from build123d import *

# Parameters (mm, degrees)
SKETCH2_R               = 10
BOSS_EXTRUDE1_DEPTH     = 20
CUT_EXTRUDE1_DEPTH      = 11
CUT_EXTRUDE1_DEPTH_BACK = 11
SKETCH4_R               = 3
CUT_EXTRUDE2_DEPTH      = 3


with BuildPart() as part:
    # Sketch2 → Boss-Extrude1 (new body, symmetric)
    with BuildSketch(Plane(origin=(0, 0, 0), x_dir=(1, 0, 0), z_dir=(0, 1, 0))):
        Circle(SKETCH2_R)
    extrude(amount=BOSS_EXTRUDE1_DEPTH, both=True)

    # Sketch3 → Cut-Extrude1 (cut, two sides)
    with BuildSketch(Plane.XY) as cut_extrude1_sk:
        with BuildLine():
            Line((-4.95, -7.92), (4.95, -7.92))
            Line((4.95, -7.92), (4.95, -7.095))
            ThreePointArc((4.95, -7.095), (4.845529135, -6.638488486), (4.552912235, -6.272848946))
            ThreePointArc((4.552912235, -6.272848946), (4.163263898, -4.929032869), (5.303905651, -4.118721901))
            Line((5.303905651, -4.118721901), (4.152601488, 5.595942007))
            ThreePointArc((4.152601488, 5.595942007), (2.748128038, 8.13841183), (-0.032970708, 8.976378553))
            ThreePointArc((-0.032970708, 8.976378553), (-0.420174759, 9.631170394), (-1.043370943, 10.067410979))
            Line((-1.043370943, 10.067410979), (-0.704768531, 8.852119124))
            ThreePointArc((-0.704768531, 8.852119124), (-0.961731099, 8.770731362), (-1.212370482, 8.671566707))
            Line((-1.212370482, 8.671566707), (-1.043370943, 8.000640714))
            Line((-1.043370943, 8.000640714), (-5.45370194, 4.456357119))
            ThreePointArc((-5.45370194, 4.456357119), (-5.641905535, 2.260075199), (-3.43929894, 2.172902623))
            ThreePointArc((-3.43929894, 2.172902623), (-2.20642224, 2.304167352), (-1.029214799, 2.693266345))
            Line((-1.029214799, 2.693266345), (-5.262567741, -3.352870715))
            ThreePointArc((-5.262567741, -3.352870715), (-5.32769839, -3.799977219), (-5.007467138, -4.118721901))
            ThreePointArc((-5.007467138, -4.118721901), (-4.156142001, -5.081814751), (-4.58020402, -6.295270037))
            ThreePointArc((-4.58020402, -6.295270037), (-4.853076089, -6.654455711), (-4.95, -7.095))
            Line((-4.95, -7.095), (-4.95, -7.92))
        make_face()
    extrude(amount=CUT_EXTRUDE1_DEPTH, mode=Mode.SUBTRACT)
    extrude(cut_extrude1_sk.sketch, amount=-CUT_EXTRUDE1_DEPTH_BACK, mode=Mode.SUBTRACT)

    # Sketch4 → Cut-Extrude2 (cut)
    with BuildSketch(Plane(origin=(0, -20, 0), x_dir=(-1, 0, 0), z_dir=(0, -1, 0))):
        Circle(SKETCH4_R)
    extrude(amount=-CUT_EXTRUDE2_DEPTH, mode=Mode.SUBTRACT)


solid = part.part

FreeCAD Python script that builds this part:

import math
import FreeCAD as App
import Part
import Sketcher
from FreeCAD import Vector

doc = App.newDocument("Part")
body = doc.addObject("PartDesign::Body", "Body")

# Sketch on XZ plane
sketch1 = body.newObject("Sketcher::SketchObject", "Sketch")
sketch1.AttachmentSupport = (doc.getObject("XZ_Plane"), [""])
sketch1.MapMode = "FlatFace"
sketch1.addGeometry(Part.Circle(Vector(0, 0, 0), Vector(0, 0, 1), 10), False)
sketch1.addConstraint(Sketcher.Constraint("Coincident", 0, 3, -1, 1))
sketch1.addConstraint(Sketcher.Constraint("Diameter", 0, 20.0))
pad1 = body.newObject("PartDesign::Pad", "Pad")
pad1.Profile = sketch1
pad1.Length = 40
pad1.Midplane = True

# Sketch on XY plane
sketch2 = body.newObject("Sketcher::SketchObject", "Sketch001")
sketch2.AttachmentSupport = (doc.getObject("XY_Plane"), [""])
sketch2.MapMode = "FlatFace"
sketch2.addGeometry(Part.LineSegment(Vector(-5, -7.9, 0), Vector(5, -7.9, 0)), False)
sketch2.addGeometry(Part.LineSegment(Vector(5, -7.9, 0), Vector(5, -7.1, 0)), False)
sketch2.addGeometry(Part.ArcOfCircle(Part.Circle(Vector(3.9, -7.1, 0), Vector(0, 0, 1), 1), math.radians(0), math.radians(52)), False)
sketch2.addGeometry(Part.ArcOfCircle(Part.Circle(Vector(5.3, -5.3, 0), Vector(0, 0, 1), 1.2), math.radians(90), math.radians(232)), False)
sketch2.addGeometry(Part.LineSegment(Vector(5.3, -4.1, 0), Vector(4.2, 5.6, 0)), False)
sketch2.addGeometry(Part.ArcOfCircle(Part.Circle(Vector(0.3, 5.1, 0), Vector(0, 0, 1), 3.9), math.radians(7), math.radians(95)), False)
sketch2.addGeometry(Part.ArcOfCircle(Part.Circle(Vector(-1.7, 8.4, 0), Vector(0, 0, 1), 1.8), math.radians(18), math.radians(67)), False)
sketch2.addGeometry(Part.LineSegment(Vector(-1, 10.1, 0), Vector(-0.7, 8.9, 0)), False)
sketch2.addGeometry(Part.ArcOfCircle(Part.Circle(Vector(0.3, 5.1, 0), Vector(0, 0, 1), 3.9), math.radians(105.57), math.radians(113.59)), False)
sketch2.addGeometry(Part.LineSegment(Vector(-1.2, 8.7, 0), Vector(-1, 8, 0)), False)
sketch2.addGeometry(Part.LineSegment(Vector(-1, 8, 0), Vector(-5.5, 4.5, 0)), False)
sketch2.addGeometry(Part.ArcOfCircle(Part.Circle(Vector(-4.5, 3.3, 0), Vector(0, 0, 1), 1.5), math.radians(129), math.radians(314)), False)
sketch2.addGeometry(Part.ArcOfCircle(Part.Circle(Vector(-3.4, 8, 0), Vector(0, 0, 1), 5.8), math.radians(-90), math.radians(-66)), False)
sketch2.addGeometry(Part.LineSegment(Vector(-1, 2.7, 0), Vector(-5.3, -3.4, 0)), False)
sketch2.addGeometry(Part.ArcOfCircle(Part.Circle(Vector(-4.9, -3.6, 0), Vector(0, 0, 1), 0.5), math.radians(145), math.radians(252)), False)
sketch2.addGeometry(Part.ArcOfCircle(Part.Circle(Vector(-5.4, -5.3, 0), Vector(0, 0, 1), 1.3), math.radians(-50), math.radians(72)), False)
sketch2.addGeometry(Part.ArcOfCircle(Part.Circle(Vector(-3.9, -7.1, 0), Vector(0, 0, 1), 1), math.radians(130), math.radians(180)), False)
sketch2.addGeometry(Part.LineSegment(Vector(-5, -7.1, 0), Vector(-5, -7.9, 0)), False)
sketch2.addConstraint(Sketcher.Constraint("Coincident", 0, 2, 1, 1))
sketch2.addConstraint(Sketcher.Constraint("Tangent", 1, 2, 2, 1))
sketch2.addConstraint(Sketcher.Constraint("Tangent", 2, 2, 3, 2))
sketch2.addConstraint(Sketcher.Constraint("Coincident", 3, 1, 4, 1))
sketch2.addConstraint(Sketcher.Constraint("Tangent", 4, 2, 5, 1))
sketch2.addConstraint(Sketcher.Constraint("Coincident", 5, 2, 6, 1))
sketch2.addConstraint(Sketcher.Constraint("Coincident", 6, 2, 7, 1))
sketch2.addConstraint(Sketcher.Constraint("Coincident", 7, 2, 8, 1))
sketch2.addConstraint(Sketcher.Constraint("Coincident", 8, 2, 9, 1))
sketch2.addConstraint(Sketcher.Constraint("Coincident", 9, 2, 10, 1))
sketch2.addConstraint(Sketcher.Constraint("Tangent", 10, 2, 11, 1))
sketch2.addConstraint(Sketcher.Constraint("Coincident", 11, 2, 12, 1))
sketch2.addConstraint(Sketcher.Constraint("Coincident", 12, 2, 13, 1))
sketch2.addConstraint(Sketcher.Constraint("Tangent", 13, 2, 14, 1))
sketch2.addConstraint(Sketcher.Constraint("Tangent", 14, 2, 15, 2))
sketch2.addConstraint(Sketcher.Constraint("Tangent", 15, 1, 16, 1))
sketch2.addConstraint(Sketcher.Constraint("Tangent", 16, 2, 17, 1))
sketch2.addConstraint(Sketcher.Constraint("Coincident", 17, 2, 0, 1))
sketch2.addConstraint(Sketcher.Constraint("Horizontal", 0))
sketch2.addConstraint(Sketcher.Constraint("Vertical", 1))
sketch2.addConstraint(Sketcher.Constraint("Vertical", 17))
sketch2.addConstraint(Sketcher.Constraint("Coincident", 8, 3, 5, 3))
sketch2.addConstraint(Sketcher.Constraint("Equal", 5, 8))
sketch2.addConstraint(Sketcher.Constraint("Equal", 2, 16))
sketch2.addConstraint(Sketcher.Constraint("Symmetric", 2, 3, 16, 3, -2))
sketch2.addConstraint(Sketcher.Constraint("Horizontal", 3, 3, 15, 3))
sketch2.addConstraint(Sketcher.Constraint("Horizontal", 12, 3, 9, 2))
sketch2.addConstraint(Sketcher.Constraint("Horizontal", 3, 1, 14, 2))
sketch2.addConstraint(Sketcher.Constraint("Vertical", 6, 2, 9, 2))
sketch2.addConstraint(Sketcher.Constraint("DistanceX", 0, 1, 0, 2, 9.9))
sketch2.addConstraint(Sketcher.Constraint("DistanceY", 1, 1, 1, 2, 0.825))
sketch2.addConstraint(Sketcher.Constraint("DistanceY", 0, 2, -1, 1, 7.92))
sketch2.addConstraint(Sketcher.Constraint("Radius", 6, 1.799112))
sketch2.addConstraint(Sketcher.Constraint("Radius", 12, 5.827739))
sketch2.addConstraint(Sketcher.Constraint("Distance", 10, 5.658))
sketch2.addConstraint(Sketcher.Constraint("Radius", 2, 1.049656))
sketch2.addConstraint(Sketcher.Constraint("Radius", 3, 1.207973))
sketch2.addConstraint(Sketcher.Constraint("Radius", 5, 3.850637))
sketch2.addConstraint(Sketcher.Constraint("Radius", 11, 1.524104))
sketch2.addConstraint(Sketcher.Constraint("Radius", 14, 0.502603))
sketch2.addConstraint(Sketcher.Constraint("Radius", 15, 1.271267))
sketch2.addConstraint(Sketcher.Constraint("DistanceX", 8, 2, 6, 2, 0.169))
sketch2.addConstraint(Sketcher.Constraint("DistanceX", 15, 3, -1, 1, 5.403601))
sketch2.addConstraint(Sketcher.Constraint("DistanceX", -1, 1, 4, 2, 4.152601))
sketch2.addConstraint(Sketcher.Constraint("DistanceX", 10, 2, -1, 1, 5.453702))
sketch2.addConstraint(Sketcher.Constraint("DistanceX", 11, 2, -1, 1, 3.439299))
sketch2.addConstraint(Sketcher.Constraint("DistanceY", 4, 2, 12, 3, 2.404699))
sketch2.addConstraint(Sketcher.Constraint("DistanceX", 6, 2, 5, 2, 1.0104))
sketch2.addConstraint(Sketcher.Constraint("DistanceY", 6, 3, 7, 2, 0.4434))
sketch2.addConstraint(Sketcher.Constraint("DistanceX", 8, 2, 7, 2, 0.507602))
sketch2.addConstraint(Sketcher.Constraint("DistanceY", 12, 2, 8, 3, 2.4495))
sketch2.addConstraint(Sketcher.Constraint("DistanceX", 13, 2, 14, 2, 0.255101))
sketch2.addConstraint(Sketcher.Constraint("DistanceY", -1, 1, 6, 3, 8.408719))
sketch2.addConstraint(Sketcher.Constraint("DistanceY", -1, 1, 11, 3, 3.26834))
pocket1 = body.newObject("PartDesign::Pocket", "Pocket")
pocket1.Profile = sketch2
pocket1.Type = "ThroughAll"
pocket1.Midplane = True

# Sketch on XZ plane
sketch3 = body.newObject("Sketcher::SketchObject", "Sketch002")
sketch3.AttachmentSupport = (doc.getObject("XZ_Plane"), [""])
sketch3.MapMode = "FlatFace"
sketch3.AttachmentOffset = App.Placement(Vector(0, 0, 20), App.Rotation())
sketch3.addGeometry(Part.Circle(Vector(0, 0, 0), Vector(0, 0, 1), 3), False)
sketch3.addConstraint(Sketcher.Constraint("Coincident", 0, 3, -1, 1))
sketch3.addConstraint(Sketcher.Constraint("Diameter", 0, 6.0))
pocket2 = body.newObject("PartDesign::Pocket", "Pocket001")
pocket2.Profile = sketch3
pocket2.Length = 3

doc.recompute()
